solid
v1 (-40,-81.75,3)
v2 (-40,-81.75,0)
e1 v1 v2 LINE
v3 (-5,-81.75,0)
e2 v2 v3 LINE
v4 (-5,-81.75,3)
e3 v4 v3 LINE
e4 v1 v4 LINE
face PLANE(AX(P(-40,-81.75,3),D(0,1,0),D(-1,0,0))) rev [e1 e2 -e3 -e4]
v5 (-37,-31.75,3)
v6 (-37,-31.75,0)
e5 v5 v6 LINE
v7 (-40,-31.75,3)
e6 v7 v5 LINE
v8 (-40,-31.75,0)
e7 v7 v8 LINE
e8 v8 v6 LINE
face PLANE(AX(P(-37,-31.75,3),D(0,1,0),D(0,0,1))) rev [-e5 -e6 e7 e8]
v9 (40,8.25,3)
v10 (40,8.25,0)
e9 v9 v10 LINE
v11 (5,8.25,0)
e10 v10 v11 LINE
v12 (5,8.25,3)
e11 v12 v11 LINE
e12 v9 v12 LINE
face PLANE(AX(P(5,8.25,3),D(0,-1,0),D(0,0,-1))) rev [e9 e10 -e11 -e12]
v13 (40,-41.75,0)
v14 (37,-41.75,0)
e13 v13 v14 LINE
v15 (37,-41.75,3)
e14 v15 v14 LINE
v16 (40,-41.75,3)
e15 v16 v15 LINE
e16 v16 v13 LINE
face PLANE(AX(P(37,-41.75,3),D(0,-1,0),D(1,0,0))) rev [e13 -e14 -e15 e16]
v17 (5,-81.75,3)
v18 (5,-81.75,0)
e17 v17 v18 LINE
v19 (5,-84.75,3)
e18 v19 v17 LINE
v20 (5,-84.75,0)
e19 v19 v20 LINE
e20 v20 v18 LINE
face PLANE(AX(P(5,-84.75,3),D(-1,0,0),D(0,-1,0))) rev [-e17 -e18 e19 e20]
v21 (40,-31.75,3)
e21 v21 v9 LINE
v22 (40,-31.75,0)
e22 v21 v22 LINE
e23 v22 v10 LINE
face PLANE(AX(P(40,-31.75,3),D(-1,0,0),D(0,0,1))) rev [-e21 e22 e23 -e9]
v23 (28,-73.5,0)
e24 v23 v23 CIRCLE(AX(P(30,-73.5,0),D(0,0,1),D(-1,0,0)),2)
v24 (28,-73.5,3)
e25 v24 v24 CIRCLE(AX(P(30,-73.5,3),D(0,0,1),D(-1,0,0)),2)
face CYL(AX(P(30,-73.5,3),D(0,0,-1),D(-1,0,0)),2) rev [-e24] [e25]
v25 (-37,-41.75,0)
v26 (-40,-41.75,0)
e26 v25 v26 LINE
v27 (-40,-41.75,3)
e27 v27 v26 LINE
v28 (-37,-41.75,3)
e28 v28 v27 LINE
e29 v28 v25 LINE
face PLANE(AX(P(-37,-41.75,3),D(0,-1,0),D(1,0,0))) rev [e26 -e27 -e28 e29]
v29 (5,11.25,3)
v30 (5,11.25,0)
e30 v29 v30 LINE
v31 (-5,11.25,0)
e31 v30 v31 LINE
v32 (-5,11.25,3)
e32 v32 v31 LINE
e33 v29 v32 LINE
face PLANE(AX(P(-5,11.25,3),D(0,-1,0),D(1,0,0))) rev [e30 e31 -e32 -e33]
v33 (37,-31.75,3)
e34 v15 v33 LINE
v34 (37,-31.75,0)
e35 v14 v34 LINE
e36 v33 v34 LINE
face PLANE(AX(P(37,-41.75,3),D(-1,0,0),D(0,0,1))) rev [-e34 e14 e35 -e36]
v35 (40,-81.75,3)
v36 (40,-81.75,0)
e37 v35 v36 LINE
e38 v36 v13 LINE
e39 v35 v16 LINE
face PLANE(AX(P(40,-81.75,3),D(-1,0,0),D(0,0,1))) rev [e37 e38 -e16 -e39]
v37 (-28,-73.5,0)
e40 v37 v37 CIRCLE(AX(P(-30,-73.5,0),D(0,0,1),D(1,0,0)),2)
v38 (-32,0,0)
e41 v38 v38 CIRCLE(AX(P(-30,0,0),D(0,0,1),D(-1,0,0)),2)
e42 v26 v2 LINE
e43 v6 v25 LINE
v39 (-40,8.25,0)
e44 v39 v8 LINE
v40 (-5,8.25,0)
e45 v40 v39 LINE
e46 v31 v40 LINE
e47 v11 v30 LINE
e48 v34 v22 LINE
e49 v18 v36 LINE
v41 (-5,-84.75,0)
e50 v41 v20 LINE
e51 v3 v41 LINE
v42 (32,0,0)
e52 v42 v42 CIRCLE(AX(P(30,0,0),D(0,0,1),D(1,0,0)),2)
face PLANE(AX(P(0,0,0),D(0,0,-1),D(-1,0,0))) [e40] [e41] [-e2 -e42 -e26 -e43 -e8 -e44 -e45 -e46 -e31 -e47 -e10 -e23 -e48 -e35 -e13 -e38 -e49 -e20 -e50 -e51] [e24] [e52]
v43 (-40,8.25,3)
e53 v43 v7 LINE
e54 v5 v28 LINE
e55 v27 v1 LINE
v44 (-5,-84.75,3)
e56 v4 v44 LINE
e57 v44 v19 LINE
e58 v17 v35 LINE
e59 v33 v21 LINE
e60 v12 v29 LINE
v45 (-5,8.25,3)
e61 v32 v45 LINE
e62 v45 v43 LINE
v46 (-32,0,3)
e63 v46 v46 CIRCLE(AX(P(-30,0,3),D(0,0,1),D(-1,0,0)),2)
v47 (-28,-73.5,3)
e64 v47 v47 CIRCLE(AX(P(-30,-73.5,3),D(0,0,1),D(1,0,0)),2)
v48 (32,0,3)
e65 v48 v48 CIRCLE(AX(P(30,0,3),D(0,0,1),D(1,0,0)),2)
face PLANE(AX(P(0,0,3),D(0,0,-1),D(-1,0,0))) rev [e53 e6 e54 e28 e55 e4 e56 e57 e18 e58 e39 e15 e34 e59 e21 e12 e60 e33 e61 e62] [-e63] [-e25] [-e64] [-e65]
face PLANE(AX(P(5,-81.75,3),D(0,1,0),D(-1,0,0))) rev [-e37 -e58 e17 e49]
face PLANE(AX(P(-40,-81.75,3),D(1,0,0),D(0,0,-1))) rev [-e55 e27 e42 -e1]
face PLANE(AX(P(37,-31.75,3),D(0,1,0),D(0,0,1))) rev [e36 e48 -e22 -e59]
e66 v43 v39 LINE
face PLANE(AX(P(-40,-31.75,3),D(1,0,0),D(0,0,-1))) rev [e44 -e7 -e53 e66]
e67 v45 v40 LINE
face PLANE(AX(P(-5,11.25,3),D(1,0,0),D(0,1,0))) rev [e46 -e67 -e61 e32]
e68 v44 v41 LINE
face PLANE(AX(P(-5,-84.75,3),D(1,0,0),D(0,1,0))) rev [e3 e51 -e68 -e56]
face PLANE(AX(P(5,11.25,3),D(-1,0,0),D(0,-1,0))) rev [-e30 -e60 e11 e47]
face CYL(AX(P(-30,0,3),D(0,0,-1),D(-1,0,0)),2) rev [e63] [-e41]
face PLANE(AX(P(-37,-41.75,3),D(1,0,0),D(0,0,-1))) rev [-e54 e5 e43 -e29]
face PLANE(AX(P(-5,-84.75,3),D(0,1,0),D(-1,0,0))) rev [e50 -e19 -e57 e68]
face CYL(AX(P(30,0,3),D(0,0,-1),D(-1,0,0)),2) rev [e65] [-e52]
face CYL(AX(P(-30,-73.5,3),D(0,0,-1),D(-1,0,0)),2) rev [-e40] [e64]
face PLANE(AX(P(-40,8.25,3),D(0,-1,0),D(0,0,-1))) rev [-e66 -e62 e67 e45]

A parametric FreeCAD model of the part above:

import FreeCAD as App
import Part
import Sketcher
from FreeCAD import Vector


def add_polygon(sketch, points):
    """Adds a closed chain of lines whose ends are joined by coincident constraints."""
    first, n = sketch.GeometryCount, len(points)
    for a, b in zip(points, points[1:] + points[:1]):
        sketch.addGeometry(Part.LineSegment(App.Vector(*a, 0), App.Vector(*b, 0)), False)
    for i in range(n):
        sketch.addConstraint(Sketcher.Constraint("Coincident", first + i, 2, first + (i + 1) % n, 1))

doc = App.newDocument("Part")
body = doc.addObject("PartDesign::Body", "Body")

# Sketch on XY plane
sketch1 = body.newObject("Sketcher::SketchObject", "Sketch")
sketch1.AttachmentSupport = (doc.getObject("XY_Plane"), [""])
sketch1.MapMode = "FlatFace"
add_polygon(sketch1, [(40, 8.2), (5, 8.2), (5, 11.2), (-5, 11.2), (-5, 8.2), (-40, 8.2), (-40, -31.8), (-37, -31.8), (-37, -41.8), (-40, -41.8), (-40, -81.8), (-5, -81.8), (-5, -84.8), (5, -84.8), (5, -81.8), (40, -81.8), (40, -41.8), (37, -41.8), (37, -31.8), (40, -31.8)])  # lines 0-19
sketch1.addGeometry(Part.Circle(Vector(30, -73.5, 0), Vector(0, 0, 1), 2), False)  # 20
sketch1.addGeometry(Part.Circle(Vector(-30, -73.5, 0), Vector(0, 0, 1), 2), False)  # 21
sketch1.addGeometry(Part.Circle(Vector(30, 0, 0), Vector(0, 0, 1), 2), False)  # 22
sketch1.addGeometry(Part.Circle(Vector(-30, 0, 0), Vector(0, 0, 1), 2), False)  # 23
sketch1.addConstraint([
    Sketcher.Constraint("Horizontal", 0),
    Sketcher.Constraint("Vertical", 1),
    Sketcher.Constraint("Horizontal", 2),
    Sketcher.Constraint("Vertical", 3),
    Sketcher.Constraint("Horizontal", 4),
    Sketcher.Constraint("Vertical", 5),
    Sketcher.Constraint("Horizontal", 6),
    Sketcher.Constraint("Vertical", 7),
    Sketcher.Constraint("Horizontal", 8),
    Sketcher.Constraint("Vertical", 9),
    Sketcher.Constraint("Horizontal", 10),
    Sketcher.Constraint("Vertical", 11),
    Sketcher.Constraint("Horizontal", 12),
    Sketcher.Constraint("Vertical", 13),
    Sketcher.Constraint("Horizontal", 14),
    Sketcher.Constraint("Vertical", 15),
    Sketcher.Constraint("Horizontal", 16),
    Sketcher.Constraint("Vertical", 17),
    Sketcher.Constraint("Horizontal", 18),
    Sketcher.Constraint("Vertical", 19),
    Sketcher.Constraint("Equal", 20, 21),
    Sketcher.Constraint("Equal", 21, 22),
    Sketcher.Constraint("Equal", 22, 23),
    Sketcher.Constraint("Symmetric", 22, 3, 23, 3, -1, 1),
    Sketcher.Constraint("Symmetric", 20, 3, 21, 3, -2),
    Sketcher.Constraint("Symmetric", 0, 2, 3, 2, -2),
    Sketcher.Constraint("Symmetric", 10, 2, 13, 2, -2),
    Sketcher.Constraint("Symmetric", 8, 2, 15, 2, -2),
    Sketcher.Constraint("Symmetric", 6, 2, 17, 2, -2),
    Sketcher.Constraint("PointOnObject", 22, 3, -1),
    Sketcher.Constraint("Vertical", 20, 3, 22, 3),
    Sketcher.Constraint("Vertical", 5, 2, 8, 2),
    Sketcher.Constraint("Vertical", 3, 2, 10, 2),
    Sketcher.Constraint("Vertical", 15, 2, 18, 2),
    Sketcher.Constraint("Equal", 18, 1),
    Sketcher.Constraint("Equal", 12, 7),
    Sketcher.Constraint("Equal", 5, 9),
    Sketcher.Constraint("Equal", 3, 11),
    Sketcher.Constraint("Diameter", 20, 4.0),
    Sketcher.Constraint("DistanceX", 0, 2, 0, 1, 35.0),
    Sketcher.Constraint("DistanceX", 2, 2, 2, 1, 10.0),
    Sketcher.Constraint("DistanceX", 6, 1, 6, 2, 3.0),
    Sketcher.Constraint("DistanceY", 5, 2, 5, 1, 40.0),
    Sketcher.Constraint("DistanceX", -1, 1, 20, 3, 30.0),
    Sketcher.Constraint("DistanceY", 20, 3, -1, 1, 73.5),
    Sketcher.Constraint("DistanceY", -1, 1, 0, 2, 8.25),
])
pad1 = body.newObject("PartDesign::Pad", "Pad")
pad1.Profile = sketch1
pad1.Length = 3

doc.recompute()
